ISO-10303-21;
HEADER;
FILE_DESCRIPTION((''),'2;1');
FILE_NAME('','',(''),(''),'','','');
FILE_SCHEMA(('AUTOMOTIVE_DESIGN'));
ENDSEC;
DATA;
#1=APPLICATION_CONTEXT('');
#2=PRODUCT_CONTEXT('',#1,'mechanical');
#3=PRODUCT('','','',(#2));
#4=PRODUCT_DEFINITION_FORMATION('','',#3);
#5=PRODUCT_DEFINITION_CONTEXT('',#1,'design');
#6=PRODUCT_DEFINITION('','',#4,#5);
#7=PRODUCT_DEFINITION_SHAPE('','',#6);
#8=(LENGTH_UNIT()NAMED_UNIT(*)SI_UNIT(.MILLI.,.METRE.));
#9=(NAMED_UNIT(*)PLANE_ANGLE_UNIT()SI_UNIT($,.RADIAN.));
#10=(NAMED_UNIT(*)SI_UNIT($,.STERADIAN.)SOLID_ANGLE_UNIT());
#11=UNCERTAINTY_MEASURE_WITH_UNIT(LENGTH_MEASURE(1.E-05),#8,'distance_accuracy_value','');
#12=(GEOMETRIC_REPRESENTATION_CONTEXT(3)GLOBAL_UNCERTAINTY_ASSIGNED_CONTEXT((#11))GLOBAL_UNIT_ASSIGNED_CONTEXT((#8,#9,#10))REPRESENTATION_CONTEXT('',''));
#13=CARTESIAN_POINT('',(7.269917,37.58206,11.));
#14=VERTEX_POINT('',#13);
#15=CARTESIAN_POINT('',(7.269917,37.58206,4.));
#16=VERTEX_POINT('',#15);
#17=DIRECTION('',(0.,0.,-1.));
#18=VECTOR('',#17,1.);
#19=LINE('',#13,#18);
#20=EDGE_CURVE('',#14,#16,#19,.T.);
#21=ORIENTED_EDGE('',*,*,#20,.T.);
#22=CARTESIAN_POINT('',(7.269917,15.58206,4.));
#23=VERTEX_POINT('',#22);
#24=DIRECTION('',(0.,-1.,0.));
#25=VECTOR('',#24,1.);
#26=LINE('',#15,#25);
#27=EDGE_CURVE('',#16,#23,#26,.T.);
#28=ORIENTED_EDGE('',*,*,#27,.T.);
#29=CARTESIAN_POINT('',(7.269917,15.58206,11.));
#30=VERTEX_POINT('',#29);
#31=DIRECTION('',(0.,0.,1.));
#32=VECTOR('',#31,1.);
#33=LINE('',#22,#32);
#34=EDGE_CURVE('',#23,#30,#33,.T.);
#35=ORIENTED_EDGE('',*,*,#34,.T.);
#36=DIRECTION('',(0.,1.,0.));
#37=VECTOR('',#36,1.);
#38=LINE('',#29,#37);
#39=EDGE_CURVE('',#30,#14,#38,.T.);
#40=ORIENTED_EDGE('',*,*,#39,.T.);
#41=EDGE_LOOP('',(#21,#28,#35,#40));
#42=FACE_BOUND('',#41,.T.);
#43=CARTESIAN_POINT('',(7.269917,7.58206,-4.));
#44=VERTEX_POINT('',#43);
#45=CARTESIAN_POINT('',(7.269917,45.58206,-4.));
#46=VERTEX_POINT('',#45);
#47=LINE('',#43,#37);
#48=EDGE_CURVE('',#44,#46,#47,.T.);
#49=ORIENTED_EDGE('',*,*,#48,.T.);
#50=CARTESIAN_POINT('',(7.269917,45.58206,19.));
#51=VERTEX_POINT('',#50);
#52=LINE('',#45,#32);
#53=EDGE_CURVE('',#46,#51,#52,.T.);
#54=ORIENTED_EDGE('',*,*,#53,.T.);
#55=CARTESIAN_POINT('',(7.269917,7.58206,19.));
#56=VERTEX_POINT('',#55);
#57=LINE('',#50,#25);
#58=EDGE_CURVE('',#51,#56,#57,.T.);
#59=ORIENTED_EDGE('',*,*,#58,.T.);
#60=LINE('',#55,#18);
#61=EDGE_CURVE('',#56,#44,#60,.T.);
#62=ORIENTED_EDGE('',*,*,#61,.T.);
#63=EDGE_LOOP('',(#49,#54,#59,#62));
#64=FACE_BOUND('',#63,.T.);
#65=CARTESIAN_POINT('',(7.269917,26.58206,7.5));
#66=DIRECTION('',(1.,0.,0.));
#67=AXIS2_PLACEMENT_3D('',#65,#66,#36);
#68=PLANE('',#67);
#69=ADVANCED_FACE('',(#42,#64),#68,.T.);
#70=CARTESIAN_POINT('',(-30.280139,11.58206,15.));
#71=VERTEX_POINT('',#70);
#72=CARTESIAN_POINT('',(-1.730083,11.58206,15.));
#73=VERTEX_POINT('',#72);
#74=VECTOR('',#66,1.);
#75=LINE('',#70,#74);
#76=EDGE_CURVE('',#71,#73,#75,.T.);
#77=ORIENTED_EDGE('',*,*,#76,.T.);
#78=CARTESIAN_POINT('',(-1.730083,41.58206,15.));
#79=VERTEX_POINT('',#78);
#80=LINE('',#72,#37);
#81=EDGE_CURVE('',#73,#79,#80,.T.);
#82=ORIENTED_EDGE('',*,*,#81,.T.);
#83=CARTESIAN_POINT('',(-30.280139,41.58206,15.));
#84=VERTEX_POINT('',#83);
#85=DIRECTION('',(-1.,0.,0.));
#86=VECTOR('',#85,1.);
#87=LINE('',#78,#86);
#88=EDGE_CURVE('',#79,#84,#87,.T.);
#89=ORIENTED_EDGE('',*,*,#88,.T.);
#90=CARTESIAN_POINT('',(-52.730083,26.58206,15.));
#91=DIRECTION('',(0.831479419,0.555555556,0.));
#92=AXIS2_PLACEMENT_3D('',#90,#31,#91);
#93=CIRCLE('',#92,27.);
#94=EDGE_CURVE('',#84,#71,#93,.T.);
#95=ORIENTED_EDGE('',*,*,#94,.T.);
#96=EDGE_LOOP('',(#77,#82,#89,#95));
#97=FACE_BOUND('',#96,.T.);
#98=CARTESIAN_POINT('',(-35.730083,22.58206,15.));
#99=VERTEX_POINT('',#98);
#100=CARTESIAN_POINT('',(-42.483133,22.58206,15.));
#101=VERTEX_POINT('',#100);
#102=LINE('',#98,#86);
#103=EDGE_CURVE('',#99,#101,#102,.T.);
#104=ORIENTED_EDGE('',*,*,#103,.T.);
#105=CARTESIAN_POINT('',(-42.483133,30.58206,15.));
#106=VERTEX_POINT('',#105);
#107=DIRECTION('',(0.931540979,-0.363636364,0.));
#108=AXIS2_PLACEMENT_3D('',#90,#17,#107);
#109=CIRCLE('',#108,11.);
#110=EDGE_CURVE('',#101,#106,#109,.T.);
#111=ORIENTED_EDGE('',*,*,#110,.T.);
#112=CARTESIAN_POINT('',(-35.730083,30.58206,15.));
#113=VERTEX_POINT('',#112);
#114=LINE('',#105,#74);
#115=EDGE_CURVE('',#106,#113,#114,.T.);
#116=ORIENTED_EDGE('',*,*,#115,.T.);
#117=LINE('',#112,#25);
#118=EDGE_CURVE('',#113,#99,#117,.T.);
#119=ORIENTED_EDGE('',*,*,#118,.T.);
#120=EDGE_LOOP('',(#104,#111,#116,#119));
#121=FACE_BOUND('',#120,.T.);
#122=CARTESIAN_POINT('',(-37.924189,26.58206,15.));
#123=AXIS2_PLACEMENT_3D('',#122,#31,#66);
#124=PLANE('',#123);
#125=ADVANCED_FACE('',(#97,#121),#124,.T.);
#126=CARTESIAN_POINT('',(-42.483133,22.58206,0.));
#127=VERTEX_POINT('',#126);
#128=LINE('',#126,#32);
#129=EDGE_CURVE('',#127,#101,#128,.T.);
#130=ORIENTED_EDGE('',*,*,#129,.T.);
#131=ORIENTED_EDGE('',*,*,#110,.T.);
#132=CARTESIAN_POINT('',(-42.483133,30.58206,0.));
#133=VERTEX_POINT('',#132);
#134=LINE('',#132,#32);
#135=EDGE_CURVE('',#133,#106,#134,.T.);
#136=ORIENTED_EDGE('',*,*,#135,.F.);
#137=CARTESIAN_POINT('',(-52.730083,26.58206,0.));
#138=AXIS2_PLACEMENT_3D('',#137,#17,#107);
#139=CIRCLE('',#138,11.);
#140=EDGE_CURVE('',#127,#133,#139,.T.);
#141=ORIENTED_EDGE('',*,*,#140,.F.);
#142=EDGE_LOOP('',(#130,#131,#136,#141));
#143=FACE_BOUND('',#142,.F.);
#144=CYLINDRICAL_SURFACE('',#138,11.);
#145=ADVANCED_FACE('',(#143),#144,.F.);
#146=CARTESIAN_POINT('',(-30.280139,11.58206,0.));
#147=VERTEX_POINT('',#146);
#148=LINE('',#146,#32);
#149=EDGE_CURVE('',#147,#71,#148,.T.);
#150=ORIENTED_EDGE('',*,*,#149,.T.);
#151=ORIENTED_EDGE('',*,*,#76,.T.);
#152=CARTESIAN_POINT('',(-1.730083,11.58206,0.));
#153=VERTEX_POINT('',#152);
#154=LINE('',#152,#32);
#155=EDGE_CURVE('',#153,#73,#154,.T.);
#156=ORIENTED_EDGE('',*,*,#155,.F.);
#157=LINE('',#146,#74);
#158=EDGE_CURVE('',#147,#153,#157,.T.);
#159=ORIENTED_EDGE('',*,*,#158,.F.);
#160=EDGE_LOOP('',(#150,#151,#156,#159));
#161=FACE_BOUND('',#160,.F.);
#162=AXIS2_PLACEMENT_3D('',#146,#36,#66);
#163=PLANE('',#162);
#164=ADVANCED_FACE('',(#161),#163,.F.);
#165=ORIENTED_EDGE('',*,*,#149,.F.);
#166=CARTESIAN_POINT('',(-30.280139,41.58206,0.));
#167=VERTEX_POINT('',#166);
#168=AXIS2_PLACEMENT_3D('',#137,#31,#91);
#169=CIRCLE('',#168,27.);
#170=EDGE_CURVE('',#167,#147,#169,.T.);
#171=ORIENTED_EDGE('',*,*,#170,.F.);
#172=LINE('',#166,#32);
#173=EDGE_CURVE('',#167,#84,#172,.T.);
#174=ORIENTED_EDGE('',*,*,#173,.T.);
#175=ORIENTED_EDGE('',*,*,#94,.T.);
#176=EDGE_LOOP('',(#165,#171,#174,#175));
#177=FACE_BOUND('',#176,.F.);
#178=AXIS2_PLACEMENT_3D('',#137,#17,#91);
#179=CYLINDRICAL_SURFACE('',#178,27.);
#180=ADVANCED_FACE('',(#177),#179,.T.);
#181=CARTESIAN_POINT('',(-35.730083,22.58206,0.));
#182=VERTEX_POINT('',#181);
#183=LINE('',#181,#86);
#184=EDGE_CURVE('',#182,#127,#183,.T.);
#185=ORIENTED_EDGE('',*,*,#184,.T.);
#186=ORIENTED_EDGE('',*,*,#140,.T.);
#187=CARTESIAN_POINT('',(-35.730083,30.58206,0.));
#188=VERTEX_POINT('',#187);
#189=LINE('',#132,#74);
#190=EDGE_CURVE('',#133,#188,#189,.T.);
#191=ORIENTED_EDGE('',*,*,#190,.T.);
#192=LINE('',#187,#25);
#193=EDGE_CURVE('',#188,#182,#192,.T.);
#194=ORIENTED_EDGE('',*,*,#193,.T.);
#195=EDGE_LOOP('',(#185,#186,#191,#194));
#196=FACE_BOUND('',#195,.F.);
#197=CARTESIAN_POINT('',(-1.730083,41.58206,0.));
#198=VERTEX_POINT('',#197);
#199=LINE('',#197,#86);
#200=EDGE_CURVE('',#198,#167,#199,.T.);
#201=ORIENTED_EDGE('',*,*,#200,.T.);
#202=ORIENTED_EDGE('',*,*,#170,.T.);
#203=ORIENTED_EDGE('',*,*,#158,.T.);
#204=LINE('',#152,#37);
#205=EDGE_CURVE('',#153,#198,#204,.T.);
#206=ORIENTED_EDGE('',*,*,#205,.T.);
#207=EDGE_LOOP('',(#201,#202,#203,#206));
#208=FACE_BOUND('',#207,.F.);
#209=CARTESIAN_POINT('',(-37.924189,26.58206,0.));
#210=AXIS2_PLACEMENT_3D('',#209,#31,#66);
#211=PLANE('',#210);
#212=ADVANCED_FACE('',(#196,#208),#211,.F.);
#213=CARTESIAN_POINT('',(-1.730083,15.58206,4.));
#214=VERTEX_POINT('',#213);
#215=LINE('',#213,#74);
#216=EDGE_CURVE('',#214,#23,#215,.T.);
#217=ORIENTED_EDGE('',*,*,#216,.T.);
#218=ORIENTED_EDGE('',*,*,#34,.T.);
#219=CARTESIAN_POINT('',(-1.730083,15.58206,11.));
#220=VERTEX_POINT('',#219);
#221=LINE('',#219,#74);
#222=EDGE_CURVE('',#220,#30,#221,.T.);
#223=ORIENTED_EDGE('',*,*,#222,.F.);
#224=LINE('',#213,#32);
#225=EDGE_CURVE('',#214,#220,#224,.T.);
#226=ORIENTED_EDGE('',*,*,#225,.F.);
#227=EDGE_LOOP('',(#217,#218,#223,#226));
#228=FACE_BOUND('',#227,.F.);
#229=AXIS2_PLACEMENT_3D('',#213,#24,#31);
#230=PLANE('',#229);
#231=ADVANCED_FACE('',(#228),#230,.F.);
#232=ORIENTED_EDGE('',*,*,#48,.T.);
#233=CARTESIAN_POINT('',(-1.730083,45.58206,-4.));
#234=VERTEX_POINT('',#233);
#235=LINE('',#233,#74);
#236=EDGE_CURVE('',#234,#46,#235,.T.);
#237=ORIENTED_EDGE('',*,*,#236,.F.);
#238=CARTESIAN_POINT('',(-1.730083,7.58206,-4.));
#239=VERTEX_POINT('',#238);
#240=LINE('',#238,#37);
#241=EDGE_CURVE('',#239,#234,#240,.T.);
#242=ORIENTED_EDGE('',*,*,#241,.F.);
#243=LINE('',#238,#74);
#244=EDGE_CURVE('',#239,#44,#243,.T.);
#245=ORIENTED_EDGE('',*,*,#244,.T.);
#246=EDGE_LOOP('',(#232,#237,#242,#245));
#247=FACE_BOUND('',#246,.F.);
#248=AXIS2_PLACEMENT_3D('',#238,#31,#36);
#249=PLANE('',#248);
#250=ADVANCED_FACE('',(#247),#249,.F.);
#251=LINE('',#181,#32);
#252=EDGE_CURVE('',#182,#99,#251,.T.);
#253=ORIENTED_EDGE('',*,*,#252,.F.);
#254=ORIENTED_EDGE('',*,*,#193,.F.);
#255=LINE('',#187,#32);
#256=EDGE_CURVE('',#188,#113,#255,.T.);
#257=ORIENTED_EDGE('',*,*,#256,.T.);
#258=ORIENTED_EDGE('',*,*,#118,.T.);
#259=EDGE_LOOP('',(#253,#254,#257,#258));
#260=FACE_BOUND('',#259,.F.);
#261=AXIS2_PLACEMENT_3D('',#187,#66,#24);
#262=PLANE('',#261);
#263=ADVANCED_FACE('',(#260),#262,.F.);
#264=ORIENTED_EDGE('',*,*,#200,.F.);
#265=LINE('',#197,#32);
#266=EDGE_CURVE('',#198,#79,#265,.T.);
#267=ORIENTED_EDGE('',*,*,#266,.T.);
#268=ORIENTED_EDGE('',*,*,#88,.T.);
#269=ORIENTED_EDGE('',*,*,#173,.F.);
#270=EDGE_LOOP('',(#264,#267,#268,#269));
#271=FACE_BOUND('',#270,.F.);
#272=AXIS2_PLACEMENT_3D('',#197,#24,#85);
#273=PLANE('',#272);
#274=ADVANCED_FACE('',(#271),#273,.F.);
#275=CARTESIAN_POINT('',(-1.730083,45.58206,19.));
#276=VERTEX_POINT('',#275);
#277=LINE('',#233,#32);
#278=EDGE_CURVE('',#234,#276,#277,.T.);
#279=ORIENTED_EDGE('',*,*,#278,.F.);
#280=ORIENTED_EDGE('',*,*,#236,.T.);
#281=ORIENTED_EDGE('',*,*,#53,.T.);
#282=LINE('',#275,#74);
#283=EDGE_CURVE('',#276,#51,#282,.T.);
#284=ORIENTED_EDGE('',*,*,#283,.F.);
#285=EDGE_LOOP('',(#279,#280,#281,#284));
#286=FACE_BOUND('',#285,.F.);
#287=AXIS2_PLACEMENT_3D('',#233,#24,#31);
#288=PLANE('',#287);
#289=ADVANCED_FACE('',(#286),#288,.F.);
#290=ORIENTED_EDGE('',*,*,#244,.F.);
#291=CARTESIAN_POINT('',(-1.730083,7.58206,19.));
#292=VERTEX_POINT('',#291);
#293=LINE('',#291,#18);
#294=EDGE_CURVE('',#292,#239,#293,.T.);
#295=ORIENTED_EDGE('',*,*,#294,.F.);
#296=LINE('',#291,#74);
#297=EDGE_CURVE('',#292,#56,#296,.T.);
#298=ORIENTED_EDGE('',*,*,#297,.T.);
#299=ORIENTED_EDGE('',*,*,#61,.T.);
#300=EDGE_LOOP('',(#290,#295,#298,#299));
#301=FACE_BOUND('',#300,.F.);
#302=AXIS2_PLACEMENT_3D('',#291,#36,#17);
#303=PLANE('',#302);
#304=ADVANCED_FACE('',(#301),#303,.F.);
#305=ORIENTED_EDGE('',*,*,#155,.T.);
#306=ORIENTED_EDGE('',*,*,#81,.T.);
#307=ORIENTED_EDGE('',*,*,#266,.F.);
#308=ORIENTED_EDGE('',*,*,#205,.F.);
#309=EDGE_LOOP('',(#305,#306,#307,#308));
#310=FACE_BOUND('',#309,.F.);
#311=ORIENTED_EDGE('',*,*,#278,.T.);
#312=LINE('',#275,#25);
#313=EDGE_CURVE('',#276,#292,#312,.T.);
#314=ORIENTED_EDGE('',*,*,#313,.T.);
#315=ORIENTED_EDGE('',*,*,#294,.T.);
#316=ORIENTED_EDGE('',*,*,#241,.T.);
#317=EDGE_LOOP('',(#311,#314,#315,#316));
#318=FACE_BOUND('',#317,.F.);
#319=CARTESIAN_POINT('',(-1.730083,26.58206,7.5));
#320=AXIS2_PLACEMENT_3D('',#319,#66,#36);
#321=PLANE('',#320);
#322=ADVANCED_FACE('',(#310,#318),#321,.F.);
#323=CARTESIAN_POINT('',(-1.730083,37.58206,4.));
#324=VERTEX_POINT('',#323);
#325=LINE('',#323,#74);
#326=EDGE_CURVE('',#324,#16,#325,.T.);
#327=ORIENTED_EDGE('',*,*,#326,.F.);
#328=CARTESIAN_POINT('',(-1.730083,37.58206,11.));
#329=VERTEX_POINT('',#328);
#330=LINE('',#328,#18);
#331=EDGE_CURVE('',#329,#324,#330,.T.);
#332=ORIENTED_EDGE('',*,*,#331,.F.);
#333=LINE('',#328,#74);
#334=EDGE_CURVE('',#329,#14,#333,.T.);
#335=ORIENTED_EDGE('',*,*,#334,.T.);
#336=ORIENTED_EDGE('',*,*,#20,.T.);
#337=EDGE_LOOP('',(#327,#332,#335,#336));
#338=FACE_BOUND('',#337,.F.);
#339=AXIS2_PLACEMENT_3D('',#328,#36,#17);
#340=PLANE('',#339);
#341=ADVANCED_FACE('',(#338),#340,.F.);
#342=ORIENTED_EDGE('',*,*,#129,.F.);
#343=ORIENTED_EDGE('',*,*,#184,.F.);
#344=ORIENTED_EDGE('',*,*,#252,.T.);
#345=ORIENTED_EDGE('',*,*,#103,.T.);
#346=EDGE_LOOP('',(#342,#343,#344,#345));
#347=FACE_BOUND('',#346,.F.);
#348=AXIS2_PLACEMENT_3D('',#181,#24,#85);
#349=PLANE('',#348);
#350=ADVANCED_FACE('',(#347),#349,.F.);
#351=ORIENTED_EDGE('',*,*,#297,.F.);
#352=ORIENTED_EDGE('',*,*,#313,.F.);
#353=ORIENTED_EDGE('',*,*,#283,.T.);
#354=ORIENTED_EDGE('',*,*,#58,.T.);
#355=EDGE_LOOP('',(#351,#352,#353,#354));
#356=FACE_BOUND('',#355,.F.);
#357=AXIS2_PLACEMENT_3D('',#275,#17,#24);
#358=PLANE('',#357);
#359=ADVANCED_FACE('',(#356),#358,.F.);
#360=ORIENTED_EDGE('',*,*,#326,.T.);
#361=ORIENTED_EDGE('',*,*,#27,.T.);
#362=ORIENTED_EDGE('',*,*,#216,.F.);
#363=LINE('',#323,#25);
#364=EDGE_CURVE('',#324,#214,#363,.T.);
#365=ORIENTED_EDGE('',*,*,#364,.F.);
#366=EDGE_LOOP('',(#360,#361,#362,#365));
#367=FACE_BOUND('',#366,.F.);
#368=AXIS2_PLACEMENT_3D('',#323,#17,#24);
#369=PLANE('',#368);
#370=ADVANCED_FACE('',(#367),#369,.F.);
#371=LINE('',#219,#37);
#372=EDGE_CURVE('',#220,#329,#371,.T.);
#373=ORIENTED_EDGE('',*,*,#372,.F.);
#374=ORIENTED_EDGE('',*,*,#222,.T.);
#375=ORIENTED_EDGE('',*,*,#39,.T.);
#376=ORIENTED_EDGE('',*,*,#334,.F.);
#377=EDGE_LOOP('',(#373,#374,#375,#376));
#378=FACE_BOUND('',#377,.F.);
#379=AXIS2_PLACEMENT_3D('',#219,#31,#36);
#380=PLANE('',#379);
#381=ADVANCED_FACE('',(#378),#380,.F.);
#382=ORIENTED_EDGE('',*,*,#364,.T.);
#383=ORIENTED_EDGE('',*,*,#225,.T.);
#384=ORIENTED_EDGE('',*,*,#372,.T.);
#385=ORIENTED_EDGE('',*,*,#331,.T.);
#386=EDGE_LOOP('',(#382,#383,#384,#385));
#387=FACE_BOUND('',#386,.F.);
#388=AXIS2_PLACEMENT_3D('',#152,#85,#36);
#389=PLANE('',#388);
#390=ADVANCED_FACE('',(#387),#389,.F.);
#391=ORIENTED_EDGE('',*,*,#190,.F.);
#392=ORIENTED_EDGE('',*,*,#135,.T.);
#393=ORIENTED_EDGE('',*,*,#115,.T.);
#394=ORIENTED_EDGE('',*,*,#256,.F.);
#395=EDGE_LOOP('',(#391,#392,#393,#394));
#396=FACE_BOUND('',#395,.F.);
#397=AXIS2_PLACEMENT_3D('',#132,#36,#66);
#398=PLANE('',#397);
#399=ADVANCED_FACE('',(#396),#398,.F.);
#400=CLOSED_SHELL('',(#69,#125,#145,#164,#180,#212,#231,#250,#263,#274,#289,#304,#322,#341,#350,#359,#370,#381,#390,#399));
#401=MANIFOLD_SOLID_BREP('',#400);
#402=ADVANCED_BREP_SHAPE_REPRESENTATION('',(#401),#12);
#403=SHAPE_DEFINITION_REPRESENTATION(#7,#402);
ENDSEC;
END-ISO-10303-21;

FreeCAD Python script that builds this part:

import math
import FreeCAD as App
import Part
import Sketcher
from FreeCAD import Vector
Q = App.Units.Quantity

doc = App.newDocument("Part")
body = doc.addObject("PartDesign::Body", "Body")

# Sketch on XY plane
sketch1 = body.newObject("Sketcher::SketchObject", "Sketch")
sketch1.AttachmentSupport = (doc.getObject("XY_Plane"), [""])
sketch1.MapMode = "FlatFace"
sketch1.addGeometry(Part.LineSegment(Vector(-1.730083, 11.58206, 0), Vector(-1.730083, 41.58206, 0)), False)
sketch1.addGeometry(Part.LineSegment(Vector(-1.730083, 41.58206, 0), Vector(-30.280139, 41.58206, 0)), False)
sketch1.addGeometry(Part.ArcOfCircle(Part.Circle(Vector(-52.730083, 26.58206, 0), Vector(0, 0, 1), 27), math.radians(33.748989), math.radians(326.251011)), False)
sketch1.addGeometry(Part.LineSegment(Vector(-30.280139, 11.58206, 0), Vector(-1.730083, 11.58206, 0)), False)
sketch1.addGeometry(Part.LineSegment(Vector(-35.730083, 22.58206, 0), Vector(-42.483133, 22.58206, 0)), False)
sketch1.addGeometry(Part.ArcOfCircle(Part.Circle(Vector(-52.730083, 26.58206, 0), Vector(0, 0, 1), 11), math.radians(21.323686), math.radians(338.676314)), False)
sketch1.addGeometry(Part.LineSegment(Vector(-42.483133, 30.58206, 0), Vector(-35.730083, 30.58206, 0)), False)
sketch1.addGeometry(Part.LineSegment(Vector(-35.730083, 30.58206, 0), Vector(-35.730083, 22.58206, 0)), False)
sketch1.addConstraint(Sketcher.Constraint("Coincident", 0, 2, 1, 1))
sketch1.addConstraint(Sketcher.Constraint("Coincident", 1, 2, 2, 1))
sketch1.addConstraint(Sketcher.Constraint("Coincident", 2, 2, 3, 1))
sketch1.addConstraint(Sketcher.Constraint("Coincident", 3, 2, 0, 1))
sketch1.addConstraint(Sketcher.Constraint("Coincident", 4, 2, 5, 2))
sketch1.addConstraint(Sketcher.Constraint("Coincident", 5, 1, 6, 1))
sketch1.addConstraint(Sketcher.Constraint("Coincident", 6, 2, 7, 1))
sketch1.addConstraint(Sketcher.Constraint("Coincident", 7, 2, 4, 1))
sketch1.addConstraint(Sketcher.Constraint("Vertical", 0))
sketch1.addConstraint(Sketcher.Constraint("Horizontal", 1))
sketch1.addConstraint(Sketcher.Constraint("Horizontal", 3))
sketch1.addConstraint(Sketcher.Constraint("Horizontal", 4))
sketch1.addConstraint(Sketcher.Constraint("Horizontal", 6))
sketch1.addConstraint(Sketcher.Constraint("Vertical", 7))
sketch1.addConstraint(Sketcher.Constraint("Coincident", 5, 3, 2, 3))
sketch1.addConstraint(Sketcher.Constraint("Vertical", 1, 2, 2, 2))
sketch1.addConstraint(Sketcher.Constraint("Vertical", 4, 2, 5, 1))
sketch1.addConstraint(Sketcher.Constraint("Radius", 2, Q("27 mm")))
sketch1.addConstraint(Sketcher.Constraint("Radius", 5, Q("11 mm")))
sketch1.addConstraint(Sketcher.Constraint("DistanceY", 0, 1, 0, 2, Q("30 mm")))
sketch1.addConstraint(Sketcher.Constraint("DistanceY", 7, 2, 7, 1, Q("8 mm")))
sketch1.addConstraint(Sketcher.Constraint("DistanceX", 2, 3, 0, 2, Q("51 mm")))
sketch1.addConstraint(Sketcher.Constraint("DistanceX", 2, 3, 6, 2, Q("17 mm")))
sketch1.addConstraint(Sketcher.Constraint("DistanceY", -1, 1, 2, 3, Q("26.58206 mm")))
sketch1.addConstraint(Sketcher.Constraint("DistanceX", 1, 2, -1, 1, Q("30.280139 mm")))
pad1 = body.newObject("PartDesign::Pad", "Pad")
pad1.Profile = sketch1
pad1.Length = 15

# Sketch on YZ plane
sketch2 = body.newObject("Sketcher::SketchObject", "Sketch001")
sketch2.AttachmentSupport = (doc.getObject("YZ_Plane"), [""])
sketch2.MapMode = "FlatFace"
sketch2.AttachmentOffset = App.Placement(Vector(0, 0, -1.730083), App.Rotation())
sketch2.addGeometry(Part.LineSegment(Vector(45.58206, 19, 0), Vector(7.58206, 19, 0)), False)
sketch2.addGeometry(Part.LineSegment(Vector(7.58206, 19, 0), Vector(7.58206, -4, 0)), False)
sketch2.addGeometry(Part.LineSegment(Vector(7.58206, -4, 0), Vector(45.58206, -4, 0)), False)
sketch2.addGeometry(Part.LineSegment(Vector(45.58206, -4, 0), Vector(45.58206, 19, 0)), False)
sketch2.addGeometry(Part.LineSegment(Vector(15.58206, 4, 0), Vector(15.58206, 11, 0)), False)
sketch2.addGeometry(Part.LineSegment(Vector(15.58206, 11, 0), Vector(37.58206, 11, 0)), False)
sketch2.addGeometry(Part.LineSegment(Vector(37.58206, 11, 0), Vector(37.58206, 4, 0)), False)
sketch2.addGeometry(Part.LineSegment(Vector(37.58206, 4, 0), Vector(15.58206, 4, 0)), False)
sketch2.addConstraint(Sketcher.Constraint("Coincident", 0, 2, 1, 1))
sketch2.addConstraint(Sketcher.Constraint("Coincident", 1, 2, 2, 1))
sketch2.addConstraint(Sketcher.Constraint("Coincident", 2, 2, 3, 1))
sketch2.addConstraint(Sketcher.Constraint("Coincident", 3, 2, 0, 1))
sketch2.addConstraint(Sketcher.Constraint("Coincident", 4, 2, 5, 1))
sketch2.addConstraint(Sketcher.Constraint("Coincident", 5, 2, 6, 1))
sketch2.addConstraint(Sketcher.Constraint("Coincident", 6, 2, 7, 1))
sketch2.addConstraint(Sketcher.Constraint("Coincident", 7, 2, 4, 1))
sketch2.addConstraint(Sketcher.Constraint("Horizontal", 0))
sketch2.addConstraint(Sketcher.Constraint("Vertical", 1))
sketch2.addConstraint(Sketcher.Constraint("Horizontal", 2))
sketch2.addConstraint(Sketcher.Constraint("Vertical", 3))
sketch2.addConstraint(Sketcher.Constraint("Vertical", 4))
sketch2.addConstraint(Sketcher.Constraint("Horizontal", 5))
sketch2.addConstraint(Sketcher.Constraint("Vertical", 6))
sketch2.addConstraint(Sketcher.Constraint("Horizontal", 7))
sketch2.addConstraint(Sketcher.Constraint("DistanceX", 0, 2, 0, 1, Q("38 mm")))
sketch2.addConstraint(Sketcher.Constraint("DistanceX", 5, 1, 5, 2, Q("22 mm")))
sketch2.addConstraint(Sketcher.Constraint("DistanceY", 1, 2, 1, 1, Q("23 mm")))
sketch2.addConstraint(Sketcher.Constraint("DistanceY", 4, 1, 4, 2, Q("7 mm")))
sketch2.addConstraint(Sketcher.Constraint("DistanceY", -1, 1, 0, 2, Q("19 mm")))
sketch2.addConstraint(Sketcher.Constraint("DistanceY", -1, 1, 4, 2, Q("11 mm")))
sketch2.addConstraint(Sketcher.Constraint("DistanceX", 0, 2, 4, 2, Q("8 mm")))
sketch2.addConstraint(Sketcher.Constraint("DistanceX", -1, 1, 0, 2, Q("7.58206 mm")))
pad2 = body.newObject("PartDesign::Pad", "Pad001")
pad2.Profile = sketch2
pad2.Length = 9

doc.recompute()
